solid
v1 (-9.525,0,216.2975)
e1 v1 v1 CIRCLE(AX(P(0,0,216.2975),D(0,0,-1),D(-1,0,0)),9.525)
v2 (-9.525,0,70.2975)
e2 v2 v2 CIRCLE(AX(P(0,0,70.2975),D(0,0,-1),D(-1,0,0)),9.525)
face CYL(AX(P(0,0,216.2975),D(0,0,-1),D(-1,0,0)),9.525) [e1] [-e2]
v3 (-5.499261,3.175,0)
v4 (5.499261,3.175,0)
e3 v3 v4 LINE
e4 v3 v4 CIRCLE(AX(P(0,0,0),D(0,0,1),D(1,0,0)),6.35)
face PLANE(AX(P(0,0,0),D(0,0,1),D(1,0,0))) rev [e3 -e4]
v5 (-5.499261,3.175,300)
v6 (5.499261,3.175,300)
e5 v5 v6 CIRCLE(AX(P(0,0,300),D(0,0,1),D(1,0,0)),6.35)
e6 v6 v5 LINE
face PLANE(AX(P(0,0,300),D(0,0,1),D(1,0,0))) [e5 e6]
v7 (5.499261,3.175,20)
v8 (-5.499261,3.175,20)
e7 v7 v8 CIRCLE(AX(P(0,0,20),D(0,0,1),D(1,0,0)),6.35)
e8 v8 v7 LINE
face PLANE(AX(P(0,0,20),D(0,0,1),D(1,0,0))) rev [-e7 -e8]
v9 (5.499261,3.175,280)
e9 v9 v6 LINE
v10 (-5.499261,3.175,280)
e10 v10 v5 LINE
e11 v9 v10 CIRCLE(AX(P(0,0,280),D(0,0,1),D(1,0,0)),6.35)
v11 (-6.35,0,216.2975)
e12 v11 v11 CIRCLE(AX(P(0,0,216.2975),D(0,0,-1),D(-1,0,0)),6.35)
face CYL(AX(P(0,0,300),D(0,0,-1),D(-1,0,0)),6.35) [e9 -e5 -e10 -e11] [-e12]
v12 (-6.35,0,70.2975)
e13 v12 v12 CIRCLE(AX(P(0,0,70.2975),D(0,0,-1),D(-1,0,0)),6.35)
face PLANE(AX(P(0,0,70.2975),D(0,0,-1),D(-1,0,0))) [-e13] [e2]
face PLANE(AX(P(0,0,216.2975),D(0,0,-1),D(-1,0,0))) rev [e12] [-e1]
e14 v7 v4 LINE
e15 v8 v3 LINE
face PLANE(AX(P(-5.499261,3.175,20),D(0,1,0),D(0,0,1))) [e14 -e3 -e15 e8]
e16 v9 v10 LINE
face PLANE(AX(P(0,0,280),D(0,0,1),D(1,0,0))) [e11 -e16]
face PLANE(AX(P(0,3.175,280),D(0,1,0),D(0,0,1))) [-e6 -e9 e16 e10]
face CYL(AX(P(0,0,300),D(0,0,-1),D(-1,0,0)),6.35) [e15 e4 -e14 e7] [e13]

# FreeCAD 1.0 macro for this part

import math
import FreeCAD as App
import Part
import Sketcher
Q = App.Units.Quantity

doc = App.newDocument("Part")
body = doc.addObject("PartDesign::Body", "Body")

sketch1 = body.newObject("Sketcher::SketchObject", "Sketch")
sketch1.AttachmentSupport = (doc.getObject("XY_Plane"), [""])
sketch1.MapMode = "FlatFace"
sketch1.addGeometry(Part.Circle(App.Vector(0, 0, 0), App.Vector(0, 0, 1), 6.35), False)
sketch1.addConstraint([
    Sketcher.Constraint("Coincident", 0, 3, -1, 1),
    Sketcher.Constraint("Diameter", 0, Q("12.7 mm")),
])
pad1 = body.newObject("PartDesign::Pad", "Pad")
pad1.Profile = sketch1
pad1.Length = 300

sketch2 = body.newObject("Sketcher::SketchObject", "Sketch001")
sketch2.AttachmentSupport = (doc.getObject("XY_Plane"), [""])
sketch2.MapMode = "FlatFace"
sketch2.AttachmentOffset = App.Placement(App.Vector(0, 0, 70.2975), App.Rotation())
sketch2.addGeometry(Part.Circle(App.Vector(0, 0, 0), App.Vector(0, 0, 1), 9.525), False)
sketch2.addConstraint([
    Sketcher.Constraint("Coincident", 0, 3, -1, 1),
    Sketcher.Constraint("Diameter", 0, Q("19.05 mm")),
])
pad2 = body.newObject("PartDesign::Pad", "Pad001")
pad2.Profile = sketch2
pad2.Length = 146

sketch3 = body.newObject("Sketcher::SketchObject", "Sketch002")
sketch3.AttachmentSupport = (doc.getObject("XY_Plane"), [""])
sketch3.MapMode = "FlatFace"
sketch3.addGeometry([
    Part.LineSegment(App.Vector(-5.499261, 3.175, 0), App.Vector(5.499261, 3.175, 0)),
    Part.ArcOfCircle(Part.Circle(App.Vector(0, 0, 0), App.Vector(0, 0, 1), 6.35), math.radians(30), math.radians(150)),
], False)
sketch3.addConstraint([
    Sketcher.Constraint("Coincident", 0, 1, 1, 2),
    Sketcher.Constraint("Coincident", 1, 1, 0, 2),
    Sketcher.Constraint("Horizontal", 0),
    Sketcher.Constraint("Coincident", 1, 3, -1, 1),
    Sketcher.Constraint("Radius", 1, Q("6.35 mm")),
    Sketcher.Constraint("DistanceY", -1, 1, 0, 1, Q("3.175 mm")),
])
pocket1 = body.newObject("PartDesign::Pocket", "Pocket")
pocket1.Profile = sketch3
pocket1.Length = 20
pocket1.Reversed = True

sketch4 = body.newObject("Sketcher::SketchObject", "Sketch003")
sketch4.AttachmentSupport = (doc.getObject("XY_Plane"), [""])
sketch4.MapMode = "FlatFace"
sketch4.AttachmentOffset = App.Placement(App.Vector(0, 0, 280), App.Rotation())
sketch4.addGeometry([
    Part.LineSegment(App.Vector(-5.499261, 3.175, 0), App.Vector(5.499261, 3.175, 0)),
    Part.ArcOfCircle(Part.Circle(App.Vector(0, 0, 0), App.Vector(0, 0, 1), 6.35), math.radians(30), math.radians(150)),
], False)
sketch4.addConstraint([
    Sketcher.Constraint("Coincident", 0, 1, 1, 2),
    Sketcher.Constraint("Coincident", 1, 1, 0, 2),
    Sketcher.Constraint("Horizontal", 0),
    Sketcher.Constraint("Coincident", 1, 3, -1, 1),
    Sketcher.Constraint("Radius", 1, Q("6.35 mm")),
    Sketcher.Constraint("DistanceY", -1, 1, 0, 1, Q("3.175 mm")),
])
pocket2 = body.newObject("PartDesign::Pocket", "Pocket001")
pocket2.Profile = sketch4
pocket2.Length = 20
pocket2.Reversed = True

doc.recompute()
